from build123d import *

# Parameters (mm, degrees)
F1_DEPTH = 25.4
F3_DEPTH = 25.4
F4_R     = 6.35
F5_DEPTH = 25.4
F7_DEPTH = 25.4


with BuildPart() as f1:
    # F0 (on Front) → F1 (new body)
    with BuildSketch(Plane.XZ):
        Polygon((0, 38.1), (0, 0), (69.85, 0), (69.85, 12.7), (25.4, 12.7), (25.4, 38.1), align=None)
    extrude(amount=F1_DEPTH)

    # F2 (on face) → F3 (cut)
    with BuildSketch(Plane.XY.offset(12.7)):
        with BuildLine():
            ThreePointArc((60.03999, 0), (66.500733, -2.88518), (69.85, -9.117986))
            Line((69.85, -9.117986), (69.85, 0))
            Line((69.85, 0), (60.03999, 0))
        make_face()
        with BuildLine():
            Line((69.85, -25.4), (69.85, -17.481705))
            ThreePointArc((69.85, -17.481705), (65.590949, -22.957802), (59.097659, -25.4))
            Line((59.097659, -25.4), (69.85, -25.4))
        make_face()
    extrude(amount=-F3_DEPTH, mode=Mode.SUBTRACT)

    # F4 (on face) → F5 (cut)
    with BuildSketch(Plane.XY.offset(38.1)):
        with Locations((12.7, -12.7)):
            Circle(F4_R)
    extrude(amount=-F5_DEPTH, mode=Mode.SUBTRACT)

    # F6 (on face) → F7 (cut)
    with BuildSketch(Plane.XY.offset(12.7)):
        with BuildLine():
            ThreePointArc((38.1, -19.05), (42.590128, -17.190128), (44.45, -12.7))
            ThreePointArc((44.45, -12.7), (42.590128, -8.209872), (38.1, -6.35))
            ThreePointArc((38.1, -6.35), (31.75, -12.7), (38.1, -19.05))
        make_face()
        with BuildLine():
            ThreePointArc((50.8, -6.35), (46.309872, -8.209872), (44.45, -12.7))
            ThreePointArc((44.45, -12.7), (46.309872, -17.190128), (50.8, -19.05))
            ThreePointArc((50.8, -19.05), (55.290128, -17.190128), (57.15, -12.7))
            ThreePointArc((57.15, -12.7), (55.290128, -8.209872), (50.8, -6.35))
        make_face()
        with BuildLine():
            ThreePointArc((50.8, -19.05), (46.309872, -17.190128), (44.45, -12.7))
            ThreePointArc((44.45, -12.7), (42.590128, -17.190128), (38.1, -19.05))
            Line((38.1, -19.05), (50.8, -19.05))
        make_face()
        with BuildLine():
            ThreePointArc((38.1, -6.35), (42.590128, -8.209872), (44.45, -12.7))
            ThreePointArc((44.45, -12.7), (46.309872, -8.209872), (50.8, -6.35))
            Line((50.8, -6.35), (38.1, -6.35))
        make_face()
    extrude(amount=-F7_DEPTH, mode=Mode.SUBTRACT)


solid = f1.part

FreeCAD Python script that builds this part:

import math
import FreeCAD as App
import Part
import Sketcher
from FreeCAD import Vector
Q = App.Units.Quantity


def add_polygon(sketch, points):
    """Adds a closed chain of lines whose ends are joined by coincident constraints."""
    first, n = sketch.GeometryCount, len(points)
    for a, b in zip(points, points[1:] + points[:1]):
        sketch.addGeometry(Part.LineSegment(App.Vector(*a, 0), App.Vector(*b, 0)), False)
    for i in range(n):
        sketch.addConstraint(Sketcher.Constraint("Coincident", first + i, 2, first + (i + 1) % n, 1))

doc = App.newDocument("Part")
body = doc.addObject("PartDesign::Body", "Body")

# Sketch on XZ plane
sketch1 = doc.addObject("Sketcher::SketchObject", "Sketch")
body.addObject(sketch1)
sketch1.AttachmentSupport = (doc.XZ_Plane, [""])
sketch1.MapMode = "FlatFace"
add_polygon(sketch1, [(0, 38), (0, 0), (70, 0), (70, 13), (25, 13), (25, 38)])  # lines 0-5
sketch1.addConstraint([
    Sketcher.Constraint("Vertical", 0),
    Sketcher.Constraint("Horizontal", 1),
    Sketcher.Constraint("Vertical", 2),
    Sketcher.Constraint("Horizontal", 3),
    Sketcher.Constraint("Vertical", 4),
    Sketcher.Constraint("Horizontal", 5),
    Sketcher.Constraint("Coincident", 0, 2, -1, 1),
    Sketcher.Constraint("Equal", 5, 4),
    Sketcher.Constraint("DistanceX", 5, 2, 5, 1, Q("1 in")),
    Sketcher.Constraint("DistanceY", 0, 2, 0, 1, Q("1.5 in")),
    Sketcher.Constraint("DistanceX", 1, 1, 1, 2, Q("2.75 in")),
])
pad1 = doc.addObject("PartDesign::Pad", "Pad")
body.addObject(pad1)
pad1.Profile = sketch1
pad1.Length = Q("1 in")

# Sketch on XY plane
sketch2 = doc.addObject("Sketcher::SketchObject", "Sketch001")
body.addObject(sketch2)
sketch2.AttachmentSupport = (doc.XY_Plane, [""])
sketch2.MapMode = "FlatFace"
sketch2.AttachmentOffset = App.Placement(Vector(0, 0, 0.5 * 25.4), App.Rotation())
sketch2.addGeometry([
    Part.ArcOfCircle(Part.Circle(Vector(59, -11, 0), Vector(0, 0, 1), 11), math.radians(9), math.radians(85)),  # 0
    Part.LineSegment(Vector(70, -9, 0), Vector(70, 0, 0)),  # 1
    Part.LineSegment(Vector(70, 0, 0), Vector(60, 0, 0)),  # 2
    Part.LineSegment(Vector(70, -25, 0), Vector(70, -17, 0)),  # 3
    Part.ArcOfCircle(Part.Circle(Vector(58, -13, 0), Vector(0, 0, 1), 13), math.radians(-85), math.radians(-22)),  # 4
    Part.LineSegment(Vector(59, -25, 0), Vector(70, -25, 0)),  # 5
], False)
sketch2.addConstraint([
    Sketcher.Constraint("Coincident", 0, 1, 1, 1),
    Sketcher.Constraint("Coincident", 1, 2, 2, 1),
    Sketcher.Constraint("Coincident", 2, 2, 0, 2),
    Sketcher.Constraint("Coincident", 3, 2, 4, 2),
    Sketcher.Constraint("Coincident", 4, 1, 5, 1),
    Sketcher.Constraint("Coincident", 5, 2, 3, 1),
    Sketcher.Constraint("Vertical", 1),
    Sketcher.Constraint("Horizontal", 2),
    Sketcher.Constraint("Vertical", 3),
    Sketcher.Constraint("Horizontal", 5),
    Sketcher.Constraint("PointOnObject", 1, 2, -1),
    Sketcher.Constraint("Vertical", 1, 2, 3, 2),
    Sketcher.Constraint("DistanceY", 4, 1, -1, 1, Q("1 in")),
    Sketcher.Constraint("DistanceX", -1, 1, 0, 1, Q("2.75 in")),
    Sketcher.Constraint("Radius", 0, Q("10.954461 mm")),
    Sketcher.Constraint("Radius", 4, Q("12.773254 mm")),
    Sketcher.Constraint("DistanceX", 2, 2, 2, 1, Q("9.81001 mm")),
    Sketcher.Constraint("DistanceX", 5, 1, 5, 2, Q("10.752341 mm")),
    Sketcher.Constraint("DistanceY", 1, 1, 1, 2, Q("9.117986 mm")),
    Sketcher.Constraint("DistanceY", 3, 1, 3, 2, Q("7.918295 mm")),
])
pocket1 = doc.addObject("PartDesign::Pocket", "Pocket")
body.addObject(pocket1)
pocket1.Profile = sketch2
pocket1.Length = Q("1 in")

# Sketch on XY plane
sketch3 = doc.addObject("Sketcher::SketchObject", "Sketch002")
body.addObject(sketch3)
sketch3.AttachmentSupport = (doc.XY_Plane, [""])
sketch3.MapMode = "FlatFace"
sketch3.AttachmentOffset = App.Placement(Vector(0, 0, 1.5 * 25.4), App.Rotation())
sketch3.addGeometry(Part.Circle(Vector(13, -13, 0), Vector(0, 0, 1), 6), False)
sketch3.addConstraint([
    Sketcher.Constraint("Diameter", 0, Q("0.5 in")),
    Sketcher.Constraint("DistanceX", -1, 1, 0, 3, Q("0.5 in")),
    Sketcher.Constraint("DistanceY", 0, 3, -1, 1, Q("0.5 in")),
])
pocket2 = doc.addObject("PartDesign::Pocket", "Pocket001")
body.addObject(pocket2)
pocket2.Profile = sketch3
pocket2.Length = Q("1 in")

# Sketch on XY plane
sketch4 = doc.addObject("Sketcher::SketchObject", "Sketch003")
body.addObject(sketch4)
sketch4.AttachmentSupport = (doc.XY_Plane, [""])
sketch4.MapMode = "FlatFace"
sketch4.AttachmentOffset = App.Placement(Vector(0, 0, 0.5 * 25.4), App.Rotation())
sketch4.addGeometry([
    Part.ArcOfCircle(Part.Circle(Vector(38, -13, 0), Vector(0, 0, 1), 6), math.radians(90), math.radians(270)),  # 0
    Part.LineSegment(Vector(38, -19, 0), Vector(51, -19, 0)),  # 1
    Part.ArcOfCircle(Part.Circle(Vector(51, -13, 0), Vector(0, 0, 1), 6), math.radians(-90), math.radians(0)),  # 2
    Part.ArcOfCircle(Part.Circle(Vector(51, -13, 0), Vector(0, 0, 1), 6), math.radians(0), math.radians(90)),  # 3
    Part.LineSegment(Vector(51, -6, 0), Vector(38, -6, 0)),  # 4
], False)
sketch4.addConstraint([
    Sketcher.Constraint("Tangent", 0, 2, 1, 1),
    Sketcher.Constraint("Tangent", 1, 2, 2, 1),
    Sketcher.Constraint("Tangent", 2, 2, 3, 1),
    Sketcher.Constraint("Tangent", 3, 2, 4, 1),
    Sketcher.Constraint("Tangent", 4, 2, 0, 1),
    Sketcher.Constraint("Horizontal", 1),
    Sketcher.Constraint("Horizontal", 4),
    Sketcher.Constraint("Equal", 0, 2),
    Sketcher.Constraint("Horizontal", 3, 3, 2, 2),
    Sketcher.Constraint("Radius", 0, Q("0.25 in")),
    Sketcher.Constraint("DistanceX", 1, 1, 1, 2, Q("0.5 in")),
    Sketcher.Constraint("DistanceX", -1, 1, 2, 3, Q("2 in")),
    Sketcher.Constraint("DistanceY", 0, 3, -1, 1, Q("0.5 in")),
])
pocket3 = doc.addObject("PartDesign::Pocket", "Pocket002")
body.addObject(pocket3)
pocket3.Profile = sketch4
pocket3.Length = Q("1 in")

doc.recompute()
